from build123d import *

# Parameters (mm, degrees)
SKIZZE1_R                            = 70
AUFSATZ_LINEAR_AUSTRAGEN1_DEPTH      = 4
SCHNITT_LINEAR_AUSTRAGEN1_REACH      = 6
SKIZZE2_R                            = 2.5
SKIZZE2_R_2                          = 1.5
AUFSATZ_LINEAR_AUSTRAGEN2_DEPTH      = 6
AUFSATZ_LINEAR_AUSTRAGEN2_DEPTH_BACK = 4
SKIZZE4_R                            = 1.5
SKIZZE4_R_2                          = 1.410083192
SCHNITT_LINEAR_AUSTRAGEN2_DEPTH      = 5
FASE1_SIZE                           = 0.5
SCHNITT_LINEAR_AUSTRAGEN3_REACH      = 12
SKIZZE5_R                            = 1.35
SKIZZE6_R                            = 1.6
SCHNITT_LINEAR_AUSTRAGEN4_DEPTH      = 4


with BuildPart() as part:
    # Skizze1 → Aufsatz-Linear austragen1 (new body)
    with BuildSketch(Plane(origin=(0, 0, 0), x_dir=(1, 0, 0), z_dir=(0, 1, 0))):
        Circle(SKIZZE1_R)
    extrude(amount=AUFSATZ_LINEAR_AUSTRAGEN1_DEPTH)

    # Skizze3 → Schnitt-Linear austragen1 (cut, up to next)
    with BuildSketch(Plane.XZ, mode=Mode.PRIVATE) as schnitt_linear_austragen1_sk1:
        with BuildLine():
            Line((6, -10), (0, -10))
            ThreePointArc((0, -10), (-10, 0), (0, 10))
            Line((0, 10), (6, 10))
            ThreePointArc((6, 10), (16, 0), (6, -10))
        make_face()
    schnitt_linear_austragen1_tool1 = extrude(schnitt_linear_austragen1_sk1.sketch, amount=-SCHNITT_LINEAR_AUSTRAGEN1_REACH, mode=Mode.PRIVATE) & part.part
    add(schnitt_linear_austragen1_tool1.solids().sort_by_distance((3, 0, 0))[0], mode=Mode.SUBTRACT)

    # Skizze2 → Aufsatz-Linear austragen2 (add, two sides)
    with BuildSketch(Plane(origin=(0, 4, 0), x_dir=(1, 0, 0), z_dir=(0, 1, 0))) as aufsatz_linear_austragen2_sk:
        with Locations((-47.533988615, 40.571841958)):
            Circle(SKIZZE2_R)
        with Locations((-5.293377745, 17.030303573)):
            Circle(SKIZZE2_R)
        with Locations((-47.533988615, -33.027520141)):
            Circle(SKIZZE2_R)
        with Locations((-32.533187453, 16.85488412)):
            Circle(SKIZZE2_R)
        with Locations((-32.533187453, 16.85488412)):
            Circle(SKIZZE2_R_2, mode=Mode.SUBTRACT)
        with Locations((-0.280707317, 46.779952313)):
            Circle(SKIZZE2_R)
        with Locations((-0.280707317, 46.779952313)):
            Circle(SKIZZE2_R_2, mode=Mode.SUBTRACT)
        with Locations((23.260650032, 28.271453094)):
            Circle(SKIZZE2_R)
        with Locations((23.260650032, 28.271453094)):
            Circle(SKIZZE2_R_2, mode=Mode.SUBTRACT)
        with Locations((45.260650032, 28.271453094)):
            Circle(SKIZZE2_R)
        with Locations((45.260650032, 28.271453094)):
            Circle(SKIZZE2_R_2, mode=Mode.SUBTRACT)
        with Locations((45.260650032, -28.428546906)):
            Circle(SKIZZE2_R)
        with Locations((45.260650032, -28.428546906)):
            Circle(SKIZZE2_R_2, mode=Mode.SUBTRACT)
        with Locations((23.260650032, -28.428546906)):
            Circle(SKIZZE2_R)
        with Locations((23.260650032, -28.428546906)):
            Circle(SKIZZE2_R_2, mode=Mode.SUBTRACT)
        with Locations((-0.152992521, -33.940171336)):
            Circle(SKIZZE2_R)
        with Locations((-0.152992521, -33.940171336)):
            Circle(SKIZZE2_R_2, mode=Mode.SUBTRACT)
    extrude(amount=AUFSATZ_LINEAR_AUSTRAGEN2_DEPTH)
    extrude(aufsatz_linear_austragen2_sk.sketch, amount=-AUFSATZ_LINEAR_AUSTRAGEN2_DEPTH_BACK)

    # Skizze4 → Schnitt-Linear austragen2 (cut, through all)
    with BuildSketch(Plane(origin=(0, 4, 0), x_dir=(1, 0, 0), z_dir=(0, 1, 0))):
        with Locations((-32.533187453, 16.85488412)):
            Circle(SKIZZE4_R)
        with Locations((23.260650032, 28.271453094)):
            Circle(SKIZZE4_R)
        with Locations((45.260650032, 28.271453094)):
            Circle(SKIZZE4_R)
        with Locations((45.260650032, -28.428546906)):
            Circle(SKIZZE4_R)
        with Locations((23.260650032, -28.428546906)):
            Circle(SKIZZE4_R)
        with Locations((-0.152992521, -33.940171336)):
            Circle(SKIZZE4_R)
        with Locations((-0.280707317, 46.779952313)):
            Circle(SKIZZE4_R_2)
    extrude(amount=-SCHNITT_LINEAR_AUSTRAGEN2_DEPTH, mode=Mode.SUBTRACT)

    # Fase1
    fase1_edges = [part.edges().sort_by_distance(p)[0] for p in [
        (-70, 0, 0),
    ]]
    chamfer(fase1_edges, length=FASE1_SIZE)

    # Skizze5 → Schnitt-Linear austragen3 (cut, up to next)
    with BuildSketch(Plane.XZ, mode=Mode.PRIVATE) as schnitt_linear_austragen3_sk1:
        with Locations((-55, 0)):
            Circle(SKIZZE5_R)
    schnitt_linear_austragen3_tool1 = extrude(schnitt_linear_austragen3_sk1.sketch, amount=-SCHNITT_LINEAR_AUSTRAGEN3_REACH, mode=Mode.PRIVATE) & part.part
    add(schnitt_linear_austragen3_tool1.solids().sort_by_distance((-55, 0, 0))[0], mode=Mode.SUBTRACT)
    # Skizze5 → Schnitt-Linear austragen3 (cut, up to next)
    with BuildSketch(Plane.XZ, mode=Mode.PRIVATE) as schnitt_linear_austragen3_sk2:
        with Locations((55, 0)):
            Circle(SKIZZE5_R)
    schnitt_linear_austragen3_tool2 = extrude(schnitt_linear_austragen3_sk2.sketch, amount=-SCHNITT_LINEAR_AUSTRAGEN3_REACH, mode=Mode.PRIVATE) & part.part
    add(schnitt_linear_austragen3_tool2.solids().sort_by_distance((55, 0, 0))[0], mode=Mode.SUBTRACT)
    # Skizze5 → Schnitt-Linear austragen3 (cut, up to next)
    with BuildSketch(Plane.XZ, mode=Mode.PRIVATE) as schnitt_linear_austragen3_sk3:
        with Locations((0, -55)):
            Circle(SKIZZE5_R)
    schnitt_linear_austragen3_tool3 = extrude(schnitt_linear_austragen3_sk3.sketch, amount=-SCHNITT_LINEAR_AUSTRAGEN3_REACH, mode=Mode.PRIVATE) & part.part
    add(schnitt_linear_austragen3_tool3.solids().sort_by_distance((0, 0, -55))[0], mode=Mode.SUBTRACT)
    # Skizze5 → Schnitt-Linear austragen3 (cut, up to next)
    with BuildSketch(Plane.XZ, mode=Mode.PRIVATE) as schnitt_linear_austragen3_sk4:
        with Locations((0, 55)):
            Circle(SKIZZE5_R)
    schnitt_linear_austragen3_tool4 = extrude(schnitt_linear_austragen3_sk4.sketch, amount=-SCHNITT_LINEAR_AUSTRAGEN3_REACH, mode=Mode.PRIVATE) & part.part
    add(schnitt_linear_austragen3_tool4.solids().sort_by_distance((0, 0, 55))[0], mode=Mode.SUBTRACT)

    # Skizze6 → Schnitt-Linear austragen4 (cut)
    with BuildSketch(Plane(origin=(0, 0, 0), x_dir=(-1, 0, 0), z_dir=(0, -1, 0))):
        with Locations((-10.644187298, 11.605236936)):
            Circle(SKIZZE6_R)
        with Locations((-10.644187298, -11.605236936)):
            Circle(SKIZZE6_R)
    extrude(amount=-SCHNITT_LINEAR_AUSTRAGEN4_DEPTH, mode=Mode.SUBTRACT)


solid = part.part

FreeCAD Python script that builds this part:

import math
import FreeCAD as App
import Part
import Sketcher


def edges_at(feature, points):
    """Names of the edges that pass closest to the given points."""
    edges = feature.Shape.Edges
    near = lambda p: min(range(len(edges)), key=lambda i: edges[i].distToShape(Part.Vertex(*p))[0])
    return sorted({f"Edge{near(p) + 1}" for p in points})

doc = App.newDocument("Part")
body = doc.addObject("PartDesign::Body", "Body")

# Sketch on XZ plane
sketch1 = doc.addObject("Sketcher::SketchObject", "Sketch")
body.addObject(sketch1)
sketch1.AttachmentSupport = (doc.XZ_Plane, [""])
sketch1.MapMode = "FlatFace"
sketch1.addGeometry(Part.Circle(App.Vector(0, 0, 0), App.Vector(0, 0, 1), 70), False)
sketch1.addConstraint(Sketcher.Constraint("Coincident", 0, 3, -1, 1))
sketch1.addConstraint(Sketcher.Constraint("Diameter", 0, 140.0))
pad1 = doc.addObject("PartDesign::Pad", "Pad")
body.addObject(pad1)
pad1.Profile = sketch1
pad1.Length = 4
pad1.Reversed = True

# Sketch on XZ plane
sketch2 = doc.addObject("Sketcher::SketchObject", "Sketch001")
body.addObject(sketch2)
sketch2.AttachmentSupport = (doc.XZ_Plane, [""])
sketch2.MapMode = "FlatFace"
sketch2.addGeometry(Part.LineSegment(App.Vector(0, -10, 0), App.Vector(6, -10, 0)), False)
sketch2.addGeometry(Part.ArcOfCircle(Part.Circle(App.Vector(6, 0, 0), App.Vector(0, 0, 1), 10), math.radians(-90), math.radians(90)), False)
sketch2.addGeometry(Part.LineSegment(App.Vector(6, 10, 0), App.Vector(0, 10, 0)), False)
sketch2.addGeometry(Part.ArcOfCircle(Part.Circle(App.Vector(0, 0, 0), App.Vector(0, 0, 1), 10), math.radians(90), math.radians(270)), False)
sketch2.addConstraint(Sketcher.Constraint("Tangent", 0, 2, 1, 1))
sketch2.addConstraint(Sketcher.Constraint("Tangent", 1, 2, 2, 1))
sketch2.addConstraint(Sketcher.Constraint("Tangent", 2, 2, 3, 1))
sketch2.addConstraint(Sketcher.Constraint("Tangent", 3, 2, 0, 1))
sketch2.addConstraint(Sketcher.Constraint("Horizontal", 0))
sketch2.addConstraint(Sketcher.Constraint("Horizontal", 2))
sketch2.addConstraint(Sketcher.Constraint("Coincident", 3, 3, -1, 1))
sketch2.addConstraint(Sketcher.Constraint("Radius", 1, 10.0))
sketch2.addConstraint(Sketcher.Constraint("DistanceX", 0, 1, 0, 2, 6.0))
pocket1 = doc.addObject("PartDesign::Pocket", "Pocket")
body.addObject(pocket1)
pocket1.Profile = sketch2
pocket1.Type = "UpToFirst"

# Sketch on XZ plane
sketch3 = doc.addObject("Sketcher::SketchObject", "Sketch002")
body.addObject(sketch3)
sketch3.AttachmentSupport = (doc.XZ_Plane, [""])
sketch3.MapMode = "FlatFace"
sketch3.AttachmentOffset = App.Placement(App.Vector(0, 0, -4), App.Rotation())
sketch3.addGeometry(Part.Circle(App.Vector(-47.533989, -40.571842, 0), App.Vector(0, 0, 1), 2.5), False)
sketch3.addGeometry(Part.Circle(App.Vector(-5.293378, -17.030304, 0), App.Vector(0, 0, 1), 2.5), False)
sketch3.addGeometry(Part.Circle(App.Vector(-47.533989, 33.02752, 0), App.Vector(0, 0, 1), 2.5), False)
sketch3.addGeometry(Part.Circle(App.Vector(-32.533187, -16.854884, 0), App.Vector(0, 0, 1), 2.5), False)
sketch3.addGeometry(Part.Circle(App.Vector(-32.533187, -16.854884, 0), App.Vector(0, 0, 1), 1.5), False)
sketch3.addGeometry(Part.Circle(App.Vector(-0.280707, -46.779952, 0), App.Vector(0, 0, 1), 2.5), False)
sketch3.addGeometry(Part.Circle(App.Vector(-0.280707, -46.779952, 0), App.Vector(0, 0, 1), 1.5), False)
sketch3.addGeometry(Part.Circle(App.Vector(23.26065, -28.271453, 0), App.Vector(0, 0, 1), 2.5), False)
sketch3.addGeometry(Part.Circle(App.Vector(23.26065, -28.271453, 0), App.Vector(0, 0, 1), 1.5), False)
sketch3.addGeometry(Part.Circle(App.Vector(45.26065, -28.271453, 0), App.Vector(0, 0, 1), 2.5), False)
sketch3.addGeometry(Part.Circle(App.Vector(45.26065, -28.271453, 0), App.Vector(0, 0, 1), 1.5), False)
sketch3.addGeometry(Part.Circle(App.Vector(45.26065, 28.428547, 0), App.Vector(0, 0, 1), 2.5), False)
sketch3.addGeometry(Part.Circle(App.Vector(45.26065, 28.428547, 0), App.Vector(0, 0, 1), 1.5), False)
sketch3.addGeometry(Part.Circle(App.Vector(23.26065, 28.428547, 0), App.Vector(0, 0, 1), 2.5), False)
sketch3.addGeometry(Part.Circle(App.Vector(23.26065, 28.428547, 0), App.Vector(0, 0, 1), 1.5), False)
sketch3.addGeometry(Part.Circle(App.Vector(-0.152993, 33.940171, 0), App.Vector(0, 0, 1), 2.5), False)
sketch3.addGeometry(Part.Circle(App.Vector(-0.152993, 33.940171, 0), App.Vector(0, 0, 1), 1.5), False)
sketch3.addConstraint(Sketcher.Constraint("Coincident", 4, 3, 3, 3))
sketch3.addConstraint(Sketcher.Constraint("Coincident", 6, 3, 5, 3))
sketch3.addConstraint(Sketcher.Constraint("Coincident", 8, 3, 7, 3))
sketch3.addConstraint(Sketcher.Constraint("Coincident", 10, 3, 9, 3))
sketch3.addConstraint(Sketcher.Constraint("Coincident", 12, 3, 11, 3))
sketch3.addConstraint(Sketcher.Constraint("Coincident", 14, 3, 13, 3))
sketch3.addConstraint(Sketcher.Constraint("Coincident", 16, 3, 15, 3))
sketch3.addConstraint(Sketcher.Constraint("Equal", 0, 1))
sketch3.addConstraint(Sketcher.Constraint("Equal", 1, 2))
sketch3.addConstraint(Sketcher.Constraint("Equal", 2, 3))
sketch3.addConstraint(Sketcher.Constraint("Equal", 3, 5))
sketch3.addConstraint(Sketcher.Constraint("Equal", 4, 6))
sketch3.addConstraint(Sketcher.Constraint("Equal", 5, 7))
sketch3.addConstraint(Sketcher.Constraint("Equal", 6, 8))
sketch3.addConstraint(Sketcher.Constraint("Equal", 7, 9))
sketch3.addConstraint(Sketcher.Constraint("Equal", 8, 10))
sketch3.addConstraint(Sketcher.Constraint("Equal", 9, 11))
sketch3.addConstraint(Sketcher.Constraint("Equal", 10, 12))
sketch3.addConstraint(Sketcher.Constraint("Equal", 11, 13))
sketch3.addConstraint(Sketcher.Constraint("Equal", 12, 14))
sketch3.addConstraint(Sketcher.Constraint("Equal", 13, 15))
sketch3.addConstraint(Sketcher.Constraint("Equal", 14, 16))
sketch3.addConstraint(Sketcher.Constraint("Horizontal", 8, 3, 9, 3))
sketch3.addConstraint(Sketcher.Constraint("Horizontal", 12, 3, 13, 3))
sketch3.addConstraint(Sketcher.Constraint("Vertical", 0, 3, 2, 3))
sketch3.addConstraint(Sketcher.Constraint("Vertical", 10, 3, 11, 3))
sketch3.addConstraint(Sketcher.Constraint("Vertical", 8, 3, 13, 3))
sketch3.addConstraint(Sketcher.Constraint("Diameter", 0, 5.0))
sketch3.addConstraint(Sketcher.Constraint("Diameter", 4, 3.0))
sketch3.addConstraint(Sketcher.Constraint("DistanceX", 7, 3, 9, 3, 22.0))
sketch3.addConstraint(Sketcher.Constraint("DistanceY", 9, 3, 11, 3, 56.7))
sketch3.addConstraint(Sketcher.Constraint("DistanceX", 0, 3, 3, 3, 15.000801))
sketch3.addConstraint(Sketcher.Constraint("DistanceY", 5, 3, 7, 3, 18.508499))
sketch3.addConstraint(Sketcher.Constraint("DistanceX", 0, 3, -1, 1, 47.533989))
sketch3.addConstraint(Sketcher.Constraint("DistanceY", 0, 3, -1, 1, 40.571842))
sketch3.addConstraint(Sketcher.Constraint("DistanceY", -1, 1, 2, 3, 33.02752))
sketch3.addConstraint(Sketcher.Constraint("DistanceX", -1, 1, 7, 3, 23.26065))
sketch3.addConstraint(Sketcher.Constraint("DistanceY", -1, 1, 15, 3, 33.940171))
sketch3.addConstraint(Sketcher.Constraint("DistanceX", 0, 3, 1, 3, 42.240611))
sketch3.addConstraint(Sketcher.Constraint("DistanceY", 0, 3, 1, 3, 23.541538))
sketch3.addConstraint(Sketcher.Constraint("DistanceY", 1, 3, 3, 3, 0.175419))
sketch3.addConstraint(Sketcher.Constraint("DistanceX", 1, 3, 5, 3, 5.01267))
sketch3.addConstraint(Sketcher.Constraint("DistanceY", 5, 3, 1, 3, 29.749649))
sketch3.addConstraint(Sketcher.Constraint("DistanceX", 15, 3, -1, 1, 0.152993))
pad2 = doc.addObject("PartDesign::Pad", "Pad001")
body.addObject(pad2)
pad2.Profile = sketch3
pad2.Type = "TwoLengths"
pad2.Length = 6
pad2.Length2 = 4
pad2.Reversed = True

# Sketch on XZ plane
sketch4 = doc.addObject("Sketcher::SketchObject", "Sketch003")
body.addObject(sketch4)
sketch4.AttachmentSupport = (doc.XZ_Plane, [""])
sketch4.MapMode = "FlatFace"
sketch4.AttachmentOffset = App.Placement(App.Vector(0, 0, -4), App.Rotation())
sketch4.addGeometry(Part.Circle(App.Vector(-32.533187, -16.854884, 0), App.Vector(0, 0, 1), 1.5), False)
sketch4.addGeometry(Part.Circle(App.Vector(23.26065, -28.271453, 0), App.Vector(0, 0, 1), 1.5), False)
sketch4.addGeometry(Part.Circle(App.Vector(45.26065, -28.271453, 0), App.Vector(0, 0, 1), 1.5), False)
sketch4.addGeometry(Part.Circle(App.Vector(45.26065, 28.428547, 0), App.Vector(0, 0, 1), 1.5), False)
sketch4.addGeometry(Part.Circle(App.Vector(23.26065, 28.428547, 0), App.Vector(0, 0, 1), 1.5), False)
sketch4.addGeometry(Part.Circle(App.Vector(-0.152993, 33.940171, 0), App.Vector(0, 0, 1), 1.5), False)
sketch4.addGeometry(Part.Circle(App.Vector(-0.280707, -46.779952, 0), App.Vector(0, 0, 1), 1.410083), False)
sketch4.addConstraint(Sketcher.Constraint("Equal", 0, 1))
sketch4.addConstraint(Sketcher.Constraint("Equal", 1, 2))
sketch4.addConstraint(Sketcher.Constraint("Equal", 2, 3))
sketch4.addConstraint(Sketcher.Constraint("Equal", 3, 4))
sketch4.addConstraint(Sketcher.Constraint("Equal", 4, 5))
sketch4.addConstraint(Sketcher.Constraint("Horizontal", 1, 3, 2, 3))
sketch4.addConstraint(Sketcher.Constraint("Horizontal", 3, 3, 4, 3))
sketch4.addConstraint(Sketcher.Constraint("Vertical", 2, 3, 3, 3))
sketch4.addConstraint(Sketcher.Constraint("Vertical", 1, 3, 4, 3))
sketch4.addConstraint(Sketcher.Constraint("Diameter", 0, 3.0))
sketch4.addConstraint(Sketcher.Constraint("DistanceX", 1, 3, 2, 3, 22.0))
sketch4.addConstraint(Sketcher.Constraint("DistanceY", 2, 3, 3, 3, 56.7))
sketch4.addConstraint(Sketcher.Constraint("Diameter", 6, 2.820166))
sketch4.addConstraint(Sketcher.Constraint("DistanceY", 6, 3, 1, 3, 18.508499))
sketch4.addConstraint(Sketcher.Constraint("DistanceX", -1, 1, 1, 3, 23.26065))
sketch4.addConstraint(Sketcher.Constraint("DistanceY", -1, 1, 5, 3, 33.940171))
sketch4.addConstraint(Sketcher.Constraint("DistanceY", 1, 3, 0, 3, 11.416569))
sketch4.addConstraint(Sketcher.Constraint("DistanceX", 0, 3, 6, 3, 32.25248))
sketch4.addConstraint(Sketcher.Constraint("DistanceX", 0, 3, -1, 1, 32.533187))
sketch4.addConstraint(Sketcher.Constraint("DistanceY", 0, 3, -1, 1, 16.854884))
sketch4.addConstraint(Sketcher.Constraint("DistanceX", 5, 3, -1, 1, 0.152993))
pocket2 = doc.addObject("PartDesign::Pocket", "Pocket001")
body.addObject(pocket2)
pocket2.Profile = sketch4
pocket2.Type = "ThroughAll"
pocket2.Reversed = True
doc.recompute()

chamfer = doc.addObject("PartDesign::Chamfer", "Chamfer")
body.addObject(chamfer)
chamfer.Base = (pocket2, edges_at(pocket2, [(-70, 0, 0)]))
chamfer.Size = 0.5

# Sketch on XZ plane
sketch5 = doc.addObject("Sketcher::SketchObject", "Sketch004")
body.addObject(sketch5)
sketch5.AttachmentSupport = (doc.XZ_Plane, [""])
sketch5.MapMode = "FlatFace"
sketch5.addGeometry(Part.Circle(App.Vector(-55, 0, 0), App.Vector(0, 0, 1), 1.35), False)
sketch5.addConstraint(Sketcher.Constraint("PointOnObject", 0, 3, -1))
sketch5.addConstraint(Sketcher.Constraint("Diameter", 0, 2.7))
sketch5.addConstraint(Sketcher.Constraint("DistanceX", 0, 3, -1, 1, 55.0))
pocket3 = doc.addObject("PartDesign::Pocket", "Pocket002")
body.addObject(pocket3)
pocket3.Profile = sketch5
pocket3.Type = "UpToFirst"

# Sketch on XZ plane
sketch6 = doc.addObject("Sketcher::SketchObject", "Sketch005")
body.addObject(sketch6)
sketch6.AttachmentSupport = (doc.XZ_Plane, [""])
sketch6.MapMode = "FlatFace"
sketch6.addGeometry(Part.Circle(App.Vector(55, 0, 0), App.Vector(0, 0, 1), 1.35), False)
sketch6.addConstraint(Sketcher.Constraint("PointOnObject", 0, 3, -1))
sketch6.addConstraint(Sketcher.Constraint("Diameter", 0, 2.7))
sketch6.addConstraint(Sketcher.Constraint("DistanceX", -1, 1, 0, 3, 55.0))
pocket4 = doc.addObject("PartDesign::Pocket", "Pocket003")
body.addObject(pocket4)
pocket4.Profile = sketch6
pocket4.Type = "UpToFirst"

# Sketch on XZ plane
sketch7 = doc.addObject("Sketcher::SketchObject", "Sketch006")
body.addObject(sketch7)
sketch7.AttachmentSupport = (doc.XZ_Plane, [""])
sketch7.MapMode = "FlatFace"
sketch7.addGeometry(Part.Circle(App.Vector(0, -55, 0), App.Vector(0, 0, 1), 1.35), False)
sketch7.addConstraint(Sketcher.Constraint("PointOnObject", 0, 3, -2))
sketch7.addConstraint(Sketcher.Constraint("Diameter", 0, 2.7))
sketch7.addConstraint(Sketcher.Constraint("DistanceY", 0, 3, -1, 1, 55.0))
pocket5 = doc.addObject("PartDesign::Pocket", "Pocket004")
body.addObject(pocket5)
pocket5.Profile = sketch7
pocket5.Type = "UpToFirst"

# Sketch on XZ plane
sketch8 = doc.addObject("Sketcher::SketchObject", "Sketch007")
body.addObject(sketch8)
sketch8.AttachmentSupport = (doc.XZ_Plane, [""])
sketch8.MapMode = "FlatFace"
sketch8.addGeometry(Part.Circle(App.Vector(0, 55, 0), App.Vector(0, 0, 1), 1.35), False)
sketch8.addConstraint(Sketcher.Constraint("PointOnObject", 0, 3, -2))
sketch8.addConstraint(Sketcher.Constraint("Diameter", 0, 2.7))
sketch8.addConstraint(Sketcher.Constraint("DistanceY", -1, 1, 0, 3, 55.0))
pocket6 = doc.addObject("PartDesign::Pocket", "Pocket005")
body.addObject(pocket6)
pocket6.Profile = sketch8
pocket6.Type = "UpToFirst"

# Sketch on XZ plane
sketch9 = doc.addObject("Sketcher::SketchObject", "Sketch008")
body.addObject(sketch9)
sketch9.AttachmentSupport = (doc.XZ_Plane, [""])
sketch9.MapMode = "FlatFace"
sketch9.addGeometry(Part.Circle(App.Vector(10.644187, -11.605237, 0), App.Vector(0, 0, 1), 1.6), False)
sketch9.addGeometry(Part.Circle(App.Vector(10.644187, 11.605237, 0), App.Vector(0, 0, 1), 1.6), False)
sketch9.addConstraint(Sketcher.Constraint("Equal", 0, 1))
sketch9.addConstraint(Sketcher.Constraint("Symmetric", 0, 3, 1, 3, -1))
sketch9.addConstraint(Sketcher.Constraint("Diameter", 0, 3.2))
sketch9.addConstraint(Sketcher.Constraint("DistanceX", -1, 1, 0, 3, 10.644187))
sketch9.addConstraint(Sketcher.Constraint("DistanceY", 0, 3, -1, 1, 11.605237))
pocket7 = doc.addObject("PartDesign::Pocket", "Pocket006")
body.addObject(pocket7)
pocket7.Profile = sketch9
pocket7.Length = 4

doc.recompute()
